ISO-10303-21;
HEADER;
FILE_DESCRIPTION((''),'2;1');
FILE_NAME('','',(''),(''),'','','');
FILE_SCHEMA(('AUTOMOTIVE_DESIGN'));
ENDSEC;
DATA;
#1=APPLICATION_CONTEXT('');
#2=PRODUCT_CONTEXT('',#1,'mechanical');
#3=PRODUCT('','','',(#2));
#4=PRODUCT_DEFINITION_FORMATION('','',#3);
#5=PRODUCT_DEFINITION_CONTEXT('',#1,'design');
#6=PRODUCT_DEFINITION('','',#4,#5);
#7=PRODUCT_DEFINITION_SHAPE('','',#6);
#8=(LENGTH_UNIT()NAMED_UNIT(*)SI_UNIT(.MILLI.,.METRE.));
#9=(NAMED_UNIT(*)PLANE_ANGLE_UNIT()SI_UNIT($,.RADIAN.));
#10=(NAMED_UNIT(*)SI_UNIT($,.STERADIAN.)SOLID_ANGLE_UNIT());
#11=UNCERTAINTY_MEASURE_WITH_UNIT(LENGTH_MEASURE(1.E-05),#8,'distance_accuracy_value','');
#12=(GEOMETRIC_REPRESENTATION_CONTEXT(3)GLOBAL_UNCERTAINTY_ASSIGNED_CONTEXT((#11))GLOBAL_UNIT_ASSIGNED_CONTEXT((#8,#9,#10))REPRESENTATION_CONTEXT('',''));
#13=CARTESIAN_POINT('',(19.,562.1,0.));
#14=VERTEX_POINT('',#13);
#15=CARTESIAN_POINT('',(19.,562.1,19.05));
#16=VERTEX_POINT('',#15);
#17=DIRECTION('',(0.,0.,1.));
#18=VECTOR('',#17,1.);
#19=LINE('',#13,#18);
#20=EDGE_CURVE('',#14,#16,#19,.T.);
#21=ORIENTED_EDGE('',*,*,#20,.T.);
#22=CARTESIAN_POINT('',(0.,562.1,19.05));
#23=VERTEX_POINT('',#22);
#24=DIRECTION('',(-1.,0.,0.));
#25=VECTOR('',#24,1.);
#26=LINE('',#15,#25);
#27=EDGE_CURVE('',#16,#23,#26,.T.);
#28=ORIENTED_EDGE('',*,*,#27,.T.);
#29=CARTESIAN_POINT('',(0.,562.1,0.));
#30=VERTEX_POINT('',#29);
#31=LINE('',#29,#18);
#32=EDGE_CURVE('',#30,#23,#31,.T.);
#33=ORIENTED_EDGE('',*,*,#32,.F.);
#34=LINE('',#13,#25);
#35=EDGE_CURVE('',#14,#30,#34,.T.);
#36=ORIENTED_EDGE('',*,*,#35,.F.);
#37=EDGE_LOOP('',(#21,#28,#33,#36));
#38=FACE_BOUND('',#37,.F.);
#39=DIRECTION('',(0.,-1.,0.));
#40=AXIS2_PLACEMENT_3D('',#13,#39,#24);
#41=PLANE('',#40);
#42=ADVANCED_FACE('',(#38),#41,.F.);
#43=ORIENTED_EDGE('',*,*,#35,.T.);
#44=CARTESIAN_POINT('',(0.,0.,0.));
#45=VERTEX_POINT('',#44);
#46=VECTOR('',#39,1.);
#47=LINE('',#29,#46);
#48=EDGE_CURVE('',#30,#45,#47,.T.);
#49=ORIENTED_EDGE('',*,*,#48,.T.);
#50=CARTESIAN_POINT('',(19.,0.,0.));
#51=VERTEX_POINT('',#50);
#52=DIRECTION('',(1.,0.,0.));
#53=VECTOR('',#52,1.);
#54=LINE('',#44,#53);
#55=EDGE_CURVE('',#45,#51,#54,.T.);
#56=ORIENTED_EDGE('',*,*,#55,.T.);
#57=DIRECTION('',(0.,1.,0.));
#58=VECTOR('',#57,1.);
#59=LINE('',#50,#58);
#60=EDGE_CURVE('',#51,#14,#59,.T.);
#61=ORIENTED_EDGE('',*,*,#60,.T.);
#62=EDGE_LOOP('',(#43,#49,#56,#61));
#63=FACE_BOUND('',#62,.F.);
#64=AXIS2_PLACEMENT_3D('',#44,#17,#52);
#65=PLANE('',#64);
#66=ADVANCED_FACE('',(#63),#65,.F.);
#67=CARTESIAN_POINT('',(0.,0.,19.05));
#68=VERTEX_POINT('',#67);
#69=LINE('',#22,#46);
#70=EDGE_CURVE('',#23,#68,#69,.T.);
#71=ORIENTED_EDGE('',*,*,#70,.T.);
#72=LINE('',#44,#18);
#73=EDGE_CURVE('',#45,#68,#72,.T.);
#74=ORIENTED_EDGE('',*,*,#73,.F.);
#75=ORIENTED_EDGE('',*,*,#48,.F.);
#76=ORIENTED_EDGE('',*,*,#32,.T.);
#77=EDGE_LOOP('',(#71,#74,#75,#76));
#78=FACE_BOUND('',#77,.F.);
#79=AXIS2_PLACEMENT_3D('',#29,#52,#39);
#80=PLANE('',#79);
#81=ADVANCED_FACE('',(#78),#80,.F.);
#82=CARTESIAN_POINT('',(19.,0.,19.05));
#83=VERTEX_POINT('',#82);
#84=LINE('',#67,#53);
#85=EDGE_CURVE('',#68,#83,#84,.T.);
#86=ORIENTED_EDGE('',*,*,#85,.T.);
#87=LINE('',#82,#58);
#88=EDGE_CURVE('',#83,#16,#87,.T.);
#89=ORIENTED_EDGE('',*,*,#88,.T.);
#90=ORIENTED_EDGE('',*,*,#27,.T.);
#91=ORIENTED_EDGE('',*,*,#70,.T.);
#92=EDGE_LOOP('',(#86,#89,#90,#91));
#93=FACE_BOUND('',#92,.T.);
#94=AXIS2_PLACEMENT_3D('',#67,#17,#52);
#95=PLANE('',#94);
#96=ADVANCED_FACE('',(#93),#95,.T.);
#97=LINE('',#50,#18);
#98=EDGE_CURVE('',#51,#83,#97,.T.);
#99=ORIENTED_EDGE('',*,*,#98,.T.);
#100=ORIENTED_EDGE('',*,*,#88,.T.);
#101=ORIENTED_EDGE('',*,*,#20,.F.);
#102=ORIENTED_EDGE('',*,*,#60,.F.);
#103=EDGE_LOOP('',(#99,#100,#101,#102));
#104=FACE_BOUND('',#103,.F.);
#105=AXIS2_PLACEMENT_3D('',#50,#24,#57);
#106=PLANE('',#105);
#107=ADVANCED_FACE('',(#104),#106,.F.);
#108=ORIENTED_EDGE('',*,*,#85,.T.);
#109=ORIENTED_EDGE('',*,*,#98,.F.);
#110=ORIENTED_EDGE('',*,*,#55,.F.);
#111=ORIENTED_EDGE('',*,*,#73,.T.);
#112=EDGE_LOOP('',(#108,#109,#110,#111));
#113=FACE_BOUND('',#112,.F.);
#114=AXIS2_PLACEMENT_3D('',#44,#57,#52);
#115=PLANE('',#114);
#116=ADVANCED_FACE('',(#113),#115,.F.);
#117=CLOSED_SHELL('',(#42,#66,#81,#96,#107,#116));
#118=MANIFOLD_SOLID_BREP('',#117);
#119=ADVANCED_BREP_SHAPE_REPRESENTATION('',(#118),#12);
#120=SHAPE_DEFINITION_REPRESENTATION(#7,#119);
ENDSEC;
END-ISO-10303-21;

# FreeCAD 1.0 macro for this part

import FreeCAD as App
import Part
import Sketcher

V = App.Vector
Q = App.Units.Quantity

doc = App.newDocument("Part")
body = doc.addObject("PartDesign::Body", "Body")

# Sketch on XY plane
sketch1 = body.newObject("Sketcher::SketchObject", "Sketch")
sketch1.AttachmentSupport = (doc.getObject("XY_Plane"), [""])
sketch1.MapMode = "FlatFace"
sketch1.addGeometry([
    Part.LineSegment(V(0, 562, 0), V(0, 0, 0)),
    Part.LineSegment(V(0, 0, 0), V(19, 0, 0)),
    Part.LineSegment(V(19, 0, 0), V(19, 562, 0)),
    Part.LineSegment(V(19, 562, 0), V(0, 562, 0)),
], False)
sketch1.addConstraint([
    Sketcher.Constraint("Coincident", 0, 2, 1, 1),
    Sketcher.Constraint("Coincident", 1, 2, 2, 1),
    Sketcher.Constraint("Coincident", 2, 2, 3, 1),
    Sketcher.Constraint("Coincident", 3, 2, 0, 1),
    Sketcher.Constraint("Vertical", 0),
    Sketcher.Constraint("Horizontal", 1),
    Sketcher.Constraint("Vertical", 2),
    Sketcher.Constraint("Horizontal", 3),
    Sketcher.Constraint("Coincident", 0, 2, -1, 1),
    Sketcher.Constraint("DistanceX", 1, 1, 1, 2, Q("19 mm")),
    Sketcher.Constraint("DistanceY", 0, 2, 0, 1, Q("562.1 mm")),
])
pad1 = body.newObject("PartDesign::Pad", "Pad")
pad1.Profile = sketch1
pad1.Length = 19.05

doc.recompute()
